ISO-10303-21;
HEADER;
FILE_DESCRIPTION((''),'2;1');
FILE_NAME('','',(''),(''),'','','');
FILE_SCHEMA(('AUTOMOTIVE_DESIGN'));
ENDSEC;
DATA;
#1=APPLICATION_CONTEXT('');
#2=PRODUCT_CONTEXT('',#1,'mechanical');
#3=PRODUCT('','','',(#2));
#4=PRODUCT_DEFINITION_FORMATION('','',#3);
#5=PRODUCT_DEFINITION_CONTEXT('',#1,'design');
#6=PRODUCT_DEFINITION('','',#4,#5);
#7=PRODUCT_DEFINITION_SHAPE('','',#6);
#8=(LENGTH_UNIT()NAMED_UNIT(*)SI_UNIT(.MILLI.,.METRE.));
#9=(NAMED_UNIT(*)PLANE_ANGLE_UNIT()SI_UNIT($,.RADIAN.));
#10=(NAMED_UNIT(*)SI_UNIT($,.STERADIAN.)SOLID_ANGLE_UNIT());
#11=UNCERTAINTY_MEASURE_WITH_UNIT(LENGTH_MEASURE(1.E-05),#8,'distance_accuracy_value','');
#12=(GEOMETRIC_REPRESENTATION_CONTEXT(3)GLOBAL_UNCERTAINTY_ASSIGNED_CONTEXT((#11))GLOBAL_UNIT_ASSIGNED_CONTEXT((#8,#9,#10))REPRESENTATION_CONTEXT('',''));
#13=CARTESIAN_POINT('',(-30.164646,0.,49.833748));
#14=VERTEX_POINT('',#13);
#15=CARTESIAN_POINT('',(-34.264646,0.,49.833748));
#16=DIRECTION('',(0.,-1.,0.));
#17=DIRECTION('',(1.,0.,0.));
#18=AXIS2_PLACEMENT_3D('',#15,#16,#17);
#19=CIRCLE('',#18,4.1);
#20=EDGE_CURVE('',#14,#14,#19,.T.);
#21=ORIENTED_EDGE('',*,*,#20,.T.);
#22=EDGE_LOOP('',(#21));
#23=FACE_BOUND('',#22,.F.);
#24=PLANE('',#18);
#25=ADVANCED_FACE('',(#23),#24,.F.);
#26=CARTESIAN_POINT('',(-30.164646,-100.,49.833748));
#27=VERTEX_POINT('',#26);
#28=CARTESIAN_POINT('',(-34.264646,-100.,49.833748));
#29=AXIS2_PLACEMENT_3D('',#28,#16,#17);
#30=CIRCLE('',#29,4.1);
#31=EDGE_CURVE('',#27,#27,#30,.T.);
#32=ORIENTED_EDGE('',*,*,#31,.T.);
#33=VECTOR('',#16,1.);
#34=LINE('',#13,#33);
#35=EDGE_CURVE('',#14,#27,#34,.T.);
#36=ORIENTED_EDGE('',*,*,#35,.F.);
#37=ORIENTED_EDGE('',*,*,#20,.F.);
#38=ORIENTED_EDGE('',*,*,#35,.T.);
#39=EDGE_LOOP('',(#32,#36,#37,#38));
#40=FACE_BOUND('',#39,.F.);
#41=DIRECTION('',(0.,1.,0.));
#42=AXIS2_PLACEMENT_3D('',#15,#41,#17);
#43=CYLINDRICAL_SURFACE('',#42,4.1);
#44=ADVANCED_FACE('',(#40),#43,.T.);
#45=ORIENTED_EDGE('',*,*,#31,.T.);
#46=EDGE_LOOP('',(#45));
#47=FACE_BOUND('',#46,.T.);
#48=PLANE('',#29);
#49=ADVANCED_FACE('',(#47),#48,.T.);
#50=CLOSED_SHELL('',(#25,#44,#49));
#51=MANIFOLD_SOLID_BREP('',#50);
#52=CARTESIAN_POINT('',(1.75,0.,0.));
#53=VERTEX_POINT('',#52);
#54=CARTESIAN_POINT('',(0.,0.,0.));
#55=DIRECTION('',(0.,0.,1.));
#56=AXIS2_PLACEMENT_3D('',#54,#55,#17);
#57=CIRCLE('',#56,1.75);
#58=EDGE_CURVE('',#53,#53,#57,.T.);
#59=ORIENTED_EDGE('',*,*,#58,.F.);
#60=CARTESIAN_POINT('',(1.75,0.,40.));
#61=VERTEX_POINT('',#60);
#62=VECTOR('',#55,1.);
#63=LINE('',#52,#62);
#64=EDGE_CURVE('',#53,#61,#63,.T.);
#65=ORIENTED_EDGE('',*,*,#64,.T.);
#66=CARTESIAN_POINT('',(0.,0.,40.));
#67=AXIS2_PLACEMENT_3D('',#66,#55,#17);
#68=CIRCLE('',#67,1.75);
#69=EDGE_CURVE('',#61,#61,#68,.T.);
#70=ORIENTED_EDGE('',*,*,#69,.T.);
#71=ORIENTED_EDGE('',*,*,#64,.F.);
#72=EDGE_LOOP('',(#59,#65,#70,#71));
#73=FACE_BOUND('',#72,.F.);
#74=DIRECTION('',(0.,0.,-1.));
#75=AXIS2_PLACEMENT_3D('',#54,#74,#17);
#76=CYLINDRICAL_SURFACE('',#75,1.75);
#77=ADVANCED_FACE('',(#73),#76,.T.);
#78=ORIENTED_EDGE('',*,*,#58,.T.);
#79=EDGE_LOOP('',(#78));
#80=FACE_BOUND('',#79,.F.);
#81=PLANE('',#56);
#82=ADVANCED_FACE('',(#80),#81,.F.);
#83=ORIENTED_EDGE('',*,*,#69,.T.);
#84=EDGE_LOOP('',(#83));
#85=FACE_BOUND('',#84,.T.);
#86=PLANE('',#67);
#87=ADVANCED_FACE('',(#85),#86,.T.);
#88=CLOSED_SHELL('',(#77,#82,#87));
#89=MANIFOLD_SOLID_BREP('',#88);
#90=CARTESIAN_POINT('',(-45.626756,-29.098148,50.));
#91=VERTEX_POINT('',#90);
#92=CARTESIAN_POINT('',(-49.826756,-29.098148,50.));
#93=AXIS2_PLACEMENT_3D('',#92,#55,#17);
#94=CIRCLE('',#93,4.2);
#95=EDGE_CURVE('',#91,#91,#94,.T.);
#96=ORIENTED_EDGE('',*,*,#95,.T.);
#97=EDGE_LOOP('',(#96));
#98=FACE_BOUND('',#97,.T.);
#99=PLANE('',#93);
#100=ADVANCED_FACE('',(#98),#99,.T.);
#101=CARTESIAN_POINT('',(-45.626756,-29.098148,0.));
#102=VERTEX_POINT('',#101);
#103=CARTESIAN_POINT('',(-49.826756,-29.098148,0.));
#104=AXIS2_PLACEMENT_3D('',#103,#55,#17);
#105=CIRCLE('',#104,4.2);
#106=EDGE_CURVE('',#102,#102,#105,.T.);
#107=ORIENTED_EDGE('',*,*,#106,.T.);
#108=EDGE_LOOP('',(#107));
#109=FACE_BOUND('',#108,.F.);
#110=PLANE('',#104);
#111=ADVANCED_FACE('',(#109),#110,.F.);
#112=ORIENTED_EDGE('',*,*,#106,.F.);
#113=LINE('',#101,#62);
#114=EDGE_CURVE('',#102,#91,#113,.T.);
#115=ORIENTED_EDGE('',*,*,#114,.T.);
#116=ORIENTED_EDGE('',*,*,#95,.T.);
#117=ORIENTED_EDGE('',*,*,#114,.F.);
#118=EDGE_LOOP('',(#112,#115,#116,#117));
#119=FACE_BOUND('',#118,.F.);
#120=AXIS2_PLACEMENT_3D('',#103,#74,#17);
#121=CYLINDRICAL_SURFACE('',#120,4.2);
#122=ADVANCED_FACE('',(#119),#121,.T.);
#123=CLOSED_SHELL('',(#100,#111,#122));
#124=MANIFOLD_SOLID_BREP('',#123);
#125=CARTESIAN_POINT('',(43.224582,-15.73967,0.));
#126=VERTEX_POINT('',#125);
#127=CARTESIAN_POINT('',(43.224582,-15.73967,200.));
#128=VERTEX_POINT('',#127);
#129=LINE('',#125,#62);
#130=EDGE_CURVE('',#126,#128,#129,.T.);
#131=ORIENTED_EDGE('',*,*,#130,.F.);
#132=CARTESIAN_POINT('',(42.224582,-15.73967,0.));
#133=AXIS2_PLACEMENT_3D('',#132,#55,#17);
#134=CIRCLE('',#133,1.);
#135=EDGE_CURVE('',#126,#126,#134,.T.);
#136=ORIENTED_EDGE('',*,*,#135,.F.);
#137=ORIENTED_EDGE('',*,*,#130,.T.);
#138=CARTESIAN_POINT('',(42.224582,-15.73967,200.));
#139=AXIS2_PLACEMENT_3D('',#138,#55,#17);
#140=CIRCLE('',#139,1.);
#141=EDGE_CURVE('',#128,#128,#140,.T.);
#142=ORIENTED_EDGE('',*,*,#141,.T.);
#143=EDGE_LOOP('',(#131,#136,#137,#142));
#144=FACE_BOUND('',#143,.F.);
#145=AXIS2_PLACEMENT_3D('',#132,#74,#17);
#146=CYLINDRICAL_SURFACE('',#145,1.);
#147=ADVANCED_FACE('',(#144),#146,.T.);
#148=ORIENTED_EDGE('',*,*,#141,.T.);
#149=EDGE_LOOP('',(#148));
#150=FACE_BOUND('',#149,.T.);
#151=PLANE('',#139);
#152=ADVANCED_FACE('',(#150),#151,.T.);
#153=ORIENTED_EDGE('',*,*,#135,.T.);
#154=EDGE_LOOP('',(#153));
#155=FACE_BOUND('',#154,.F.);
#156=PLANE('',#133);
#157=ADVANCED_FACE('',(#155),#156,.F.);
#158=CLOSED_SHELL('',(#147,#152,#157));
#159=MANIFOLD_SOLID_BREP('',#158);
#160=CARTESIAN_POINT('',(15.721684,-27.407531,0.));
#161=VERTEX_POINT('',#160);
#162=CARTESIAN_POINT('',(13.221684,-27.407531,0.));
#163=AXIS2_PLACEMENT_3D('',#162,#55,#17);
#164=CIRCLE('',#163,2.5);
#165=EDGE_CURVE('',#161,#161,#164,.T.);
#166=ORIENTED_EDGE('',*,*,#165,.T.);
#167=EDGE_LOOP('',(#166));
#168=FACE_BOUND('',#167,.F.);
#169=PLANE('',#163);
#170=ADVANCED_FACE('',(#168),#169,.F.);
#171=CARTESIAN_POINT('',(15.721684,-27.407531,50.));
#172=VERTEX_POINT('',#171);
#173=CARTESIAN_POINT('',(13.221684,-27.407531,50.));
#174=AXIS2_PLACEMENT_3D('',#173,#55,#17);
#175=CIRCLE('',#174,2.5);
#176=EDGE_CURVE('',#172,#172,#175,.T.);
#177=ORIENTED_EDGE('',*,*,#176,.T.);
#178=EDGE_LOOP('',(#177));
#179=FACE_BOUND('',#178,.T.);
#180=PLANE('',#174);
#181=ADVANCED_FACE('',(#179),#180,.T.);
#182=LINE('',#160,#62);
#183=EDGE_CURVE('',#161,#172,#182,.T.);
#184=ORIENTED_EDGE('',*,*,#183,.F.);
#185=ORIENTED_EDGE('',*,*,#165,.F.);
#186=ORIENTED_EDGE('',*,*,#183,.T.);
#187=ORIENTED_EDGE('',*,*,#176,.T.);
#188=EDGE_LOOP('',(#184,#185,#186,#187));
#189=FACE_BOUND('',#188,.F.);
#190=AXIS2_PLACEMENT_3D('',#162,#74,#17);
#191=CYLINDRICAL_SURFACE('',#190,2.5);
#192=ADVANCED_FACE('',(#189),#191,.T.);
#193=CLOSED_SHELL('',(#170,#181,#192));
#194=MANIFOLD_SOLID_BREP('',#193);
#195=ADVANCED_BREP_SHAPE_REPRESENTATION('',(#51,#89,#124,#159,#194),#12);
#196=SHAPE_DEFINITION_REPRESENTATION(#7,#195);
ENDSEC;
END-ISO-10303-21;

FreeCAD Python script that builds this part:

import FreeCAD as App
import Part
import Sketcher

doc = App.newDocument("Part")
body = doc.addObject("PartDesign::Body", "Body")

sketch1 = body.newObject("Sketcher::SketchObject", "Sketch")
sketch1.AttachmentSupport = (doc.getObject("XY_Plane"), [""])
sketch1.MapMode = "FlatFace"
sketch1.addGeometry(Part.Circle(App.Vector(0, 0, 0), App.Vector(0, 0, 1), 1.8), False)
sketch1.addConstraint([
    Sketcher.Constraint("Coincident", 0, 3, -1, 1),
    Sketcher.Constraint("Diameter", 0, 3.5),
])
pad1 = body.newObject("PartDesign::Pad", "Pad")
pad1.Profile = sketch1
pad1.Length = 40
body2 = doc.addObject("PartDesign::Body", "Body001")

sketch2 = body2.newObject("Sketcher::SketchObject", "Sketch001")
sketch2.AttachmentSupport = (doc.getObject("XY_Plane001"), [""])
sketch2.MapMode = "FlatFace"
sketch2.addGeometry(Part.Circle(App.Vector(13.2, -27.4, 0), App.Vector(0, 0, 1), 2.5), False)
sketch2.addConstraint([
    Sketcher.Constraint("Diameter", 0, 5.0),
    Sketcher.Constraint("DistanceY", 0, 3, -1, 1, 27.407531),
    Sketcher.Constraint("DistanceX", -1, 1, 0, 3, 13.221684),
])
pad2 = body2.newObject("PartDesign::Pad", "Pad001")
pad2.Profile = sketch2
pad2.Length = 50
body3 = doc.addObject("PartDesign::Body", "Body002")

sketch3 = body3.newObject("Sketcher::SketchObject", "Sketch002")
sketch3.AttachmentSupport = (doc.getObject("XY_Plane002"), [""])
sketch3.MapMode = "FlatFace"
sketch3.addGeometry(Part.Circle(App.Vector(-49.8, -29.1, 0), App.Vector(0, 0, 1), 4.2), False)
sketch3.addConstraint([
    Sketcher.Constraint("Diameter", 0, 8.4),
    Sketcher.Constraint("DistanceX", 0, 3, -1, 1, 49.826756),
    Sketcher.Constraint("DistanceY", 0, 3, -1, 1, 29.098148),
])
pad3 = body3.newObject("PartDesign::Pad", "Pad002")
pad3.Profile = sketch3
pad3.Length = 50
body4 = doc.addObject("PartDesign::Body", "Body003")

sketch4 = body4.newObject("Sketcher::SketchObject", "Sketch003")
sketch4.AttachmentSupport = (doc.getObject("XY_Plane003"), [""])
sketch4.MapMode = "FlatFace"
sketch4.addGeometry(Part.Circle(App.Vector(42.2, -15.7, 0), App.Vector(0, 0, 1), 1), False)
sketch4.addConstraint([
    Sketcher.Constraint("Diameter", 0, 2.0),
    Sketcher.Constraint("DistanceX", -1, 1, 0, 3, 42.224582),
    Sketcher.Constraint("DistanceY", 0, 3, -1, 1, 15.73967),
])
pad4 = body4.newObject("PartDesign::Pad", "Pad003")
pad4.Profile = sketch4
pad4.Length = 200
body5 = doc.addObject("PartDesign::Body", "Body004")

sketch5 = body5.newObject("Sketcher::SketchObject", "Sketch004")
sketch5.AttachmentSupport = (doc.getObject("XZ_Plane004"), [""])
sketch5.MapMode = "FlatFace"
sketch5.addGeometry(Part.Circle(App.Vector(-34.3, 49.8, 0), App.Vector(0, 0, 1), 4.1), False)
sketch5.addConstraint([
    Sketcher.Constraint("Diameter", 0, 8.2),
    Sketcher.Constraint("DistanceX", 0, 3, -1, 1, 34.264646),
    Sketcher.Constraint("DistanceY", -1, 1, 0, 3, 49.833748),
])
pad5 = body5.newObject("PartDesign::Pad", "Pad004")
pad5.Profile = sketch5
pad5.Length = 100

doc.recompute()
